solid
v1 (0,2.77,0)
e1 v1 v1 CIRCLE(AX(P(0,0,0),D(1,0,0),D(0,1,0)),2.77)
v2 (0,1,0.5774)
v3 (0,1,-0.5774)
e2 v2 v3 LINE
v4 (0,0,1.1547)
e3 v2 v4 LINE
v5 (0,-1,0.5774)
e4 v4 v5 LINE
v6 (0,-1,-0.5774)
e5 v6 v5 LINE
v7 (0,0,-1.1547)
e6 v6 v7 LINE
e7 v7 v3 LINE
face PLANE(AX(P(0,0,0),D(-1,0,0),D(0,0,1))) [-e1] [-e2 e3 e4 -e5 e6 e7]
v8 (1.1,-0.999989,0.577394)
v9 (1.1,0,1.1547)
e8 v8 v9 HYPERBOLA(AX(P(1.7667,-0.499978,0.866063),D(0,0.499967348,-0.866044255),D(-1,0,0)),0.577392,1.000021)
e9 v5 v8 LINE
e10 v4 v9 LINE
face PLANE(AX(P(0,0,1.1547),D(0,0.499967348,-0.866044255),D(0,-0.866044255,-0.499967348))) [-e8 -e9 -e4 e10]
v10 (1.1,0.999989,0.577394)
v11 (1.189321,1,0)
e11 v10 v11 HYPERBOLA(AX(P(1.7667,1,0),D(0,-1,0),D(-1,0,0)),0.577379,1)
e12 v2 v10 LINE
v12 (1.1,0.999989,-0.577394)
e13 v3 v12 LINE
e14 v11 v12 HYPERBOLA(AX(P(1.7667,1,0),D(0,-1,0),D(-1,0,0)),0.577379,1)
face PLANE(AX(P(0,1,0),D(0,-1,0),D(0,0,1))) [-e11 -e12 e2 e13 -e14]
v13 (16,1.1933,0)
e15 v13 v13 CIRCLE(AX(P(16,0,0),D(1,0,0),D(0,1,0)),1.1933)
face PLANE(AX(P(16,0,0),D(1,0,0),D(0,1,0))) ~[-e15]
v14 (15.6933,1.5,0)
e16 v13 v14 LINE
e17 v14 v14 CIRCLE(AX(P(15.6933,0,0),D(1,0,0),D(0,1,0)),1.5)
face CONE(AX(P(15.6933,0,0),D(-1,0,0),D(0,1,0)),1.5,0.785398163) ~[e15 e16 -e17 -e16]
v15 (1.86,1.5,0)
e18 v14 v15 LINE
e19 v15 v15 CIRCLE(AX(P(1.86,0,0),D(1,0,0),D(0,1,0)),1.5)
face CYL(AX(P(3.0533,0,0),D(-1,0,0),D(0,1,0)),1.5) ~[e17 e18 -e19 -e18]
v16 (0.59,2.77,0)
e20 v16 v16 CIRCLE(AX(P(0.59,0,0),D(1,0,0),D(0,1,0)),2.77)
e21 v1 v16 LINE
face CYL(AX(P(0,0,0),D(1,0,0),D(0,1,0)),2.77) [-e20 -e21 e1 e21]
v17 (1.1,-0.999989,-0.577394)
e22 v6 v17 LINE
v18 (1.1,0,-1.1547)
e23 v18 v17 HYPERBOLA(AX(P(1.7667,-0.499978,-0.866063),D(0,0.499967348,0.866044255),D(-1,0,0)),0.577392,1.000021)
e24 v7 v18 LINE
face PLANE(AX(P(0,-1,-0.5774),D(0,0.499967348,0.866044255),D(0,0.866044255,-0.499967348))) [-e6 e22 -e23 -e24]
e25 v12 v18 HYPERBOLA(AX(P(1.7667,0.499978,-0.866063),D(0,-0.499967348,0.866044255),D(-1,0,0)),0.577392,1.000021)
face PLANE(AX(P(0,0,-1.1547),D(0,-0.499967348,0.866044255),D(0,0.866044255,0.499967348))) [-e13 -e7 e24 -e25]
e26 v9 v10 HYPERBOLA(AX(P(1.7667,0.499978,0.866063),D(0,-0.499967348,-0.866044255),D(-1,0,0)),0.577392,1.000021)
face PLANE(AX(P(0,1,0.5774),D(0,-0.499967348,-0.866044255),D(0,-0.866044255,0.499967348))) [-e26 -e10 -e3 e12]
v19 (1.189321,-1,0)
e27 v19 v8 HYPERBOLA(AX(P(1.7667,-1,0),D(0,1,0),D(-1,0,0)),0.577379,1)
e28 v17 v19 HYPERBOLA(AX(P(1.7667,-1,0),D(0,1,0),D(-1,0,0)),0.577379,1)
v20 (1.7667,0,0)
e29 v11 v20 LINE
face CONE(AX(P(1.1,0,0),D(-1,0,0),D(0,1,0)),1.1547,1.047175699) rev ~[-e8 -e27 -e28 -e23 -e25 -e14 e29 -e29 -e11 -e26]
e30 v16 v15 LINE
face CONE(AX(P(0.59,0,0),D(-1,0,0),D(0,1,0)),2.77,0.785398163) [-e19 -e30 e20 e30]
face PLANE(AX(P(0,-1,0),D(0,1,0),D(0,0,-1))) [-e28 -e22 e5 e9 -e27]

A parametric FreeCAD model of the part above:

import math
import FreeCAD as App
import Part
import Sketcher

V = App.Vector
Q = App.Units.Quantity


def edges_at(feature, points):
    """Names of the edges that pass closest to the given points."""
    edges = feature.Shape.Edges
    near = lambda p: min(range(len(edges)), key=lambda i: edges[i].distToShape(Part.Vertex(*p))[0])
    return sorted({f"Edge{near(p) + 1}" for p in points})

doc = App.newDocument("Part")
params = doc.addObject("Spreadsheet::Sheet", "Params")
for row, (alias, value) in enumerate([
    ("sketch1_width", "1.1 mm"),
    ("sketch1_height", "1.5 mm"),
    ("sketch1_width2", "0.59 mm"),
    ("revolution_angle", "360 deg"),
    ("chamfer_size", "0.3067 mm"),
    ("chamfer_size2", "0.3067 mm"),
], start=1):
    params.set(f"A{row}", alias)
    params.set(f"B{row}", "=" + value)
    params.setAlias(f"B{row}", alias)

body = doc.addObject("PartDesign::Body", "Body")

# Sketch on XY plane
sketch1 = doc.addObject("Sketcher::SketchObject", "Sketch")
body.addObject(sketch1)
sketch1.AttachmentSupport = (doc.XY_Plane, [""])
sketch1.MapMode = "FlatFace"
sketch1.addGeometry(Part.LineSegment(V(1.8, 0, 0), V(16, 0, 0)), False)
sketch1.addGeometry(Part.LineSegment(V(16, 0, 0), V(16, 1.5, 0)), False)
sketch1.addGeometry(Part.LineSegment(V(16, 1.5, 0), V(1.9, 1.5, 0)), False)
sketch1.addGeometry(Part.LineSegment(V(1.9, 1.5, 0), V(0.6, 2.8, 0)), False)
sketch1.addGeometry(Part.LineSegment(V(0.6, 2.8, 0), V(0, 2.8, 0)), False)
sketch1.addGeometry(Part.LineSegment(V(0, 2.8, 0), V(0, 1.2, 0)), False)
sketch1.addGeometry(Part.LineSegment(V(0, 1.2, 0), V(1.1, 1.2, 0)), False)
sketch1.addGeometry(Part.LineSegment(V(1.1, 1.2, 0), V(1.8, 0, 0)), False)
sketch1.addConstraint(Sketcher.Constraint("Coincident", 0, 2, 1, 1))
sketch1.addConstraint(Sketcher.Constraint("Coincident", 1, 2, 2, 1))
sketch1.addConstraint(Sketcher.Constraint("Coincident", 2, 2, 3, 1))
sketch1.addConstraint(Sketcher.Constraint("Coincident", 3, 2, 4, 1))
sketch1.addConstraint(Sketcher.Constraint("Coincident", 4, 2, 5, 1))
sketch1.addConstraint(Sketcher.Constraint("Coincident", 5, 2, 6, 1))
sketch1.addConstraint(Sketcher.Constraint("Coincident", 6, 2, 7, 1))
sketch1.addConstraint(Sketcher.Constraint("Coincident", 7, 2, 0, 1))
sketch1.addConstraint(Sketcher.Constraint("Horizontal", 0))
sketch1.addConstraint(Sketcher.Constraint("Vertical", 1))
sketch1.addConstraint(Sketcher.Constraint("Horizontal", 2))
sketch1.addConstraint(Sketcher.Constraint("Horizontal", 4))
sketch1.addConstraint(Sketcher.Constraint("Vertical", 5))
sketch1.addConstraint(Sketcher.Constraint("Horizontal", 6))
sketch1.addConstraint(Sketcher.Constraint("PointOnObject", 0, 2, -1))
sketch1.addConstraint(Sketcher.Constraint("PointOnObject", 4, 2, -2))
sketch1.addConstraint(Sketcher.Constraint("DistanceX", 6, 1, 6, 2, 1.1))
sketch1.addConstraint(Sketcher.Constraint("DistanceX", -1, 1, 0, 2, 16.0))
sketch1.addConstraint(Sketcher.Constraint("DistanceX", -1, 1, 2, 2, 1.86))
sketch1.addConstraint(Sketcher.Constraint("Angle", 3, Q("135 deg")))
sketch1.addConstraint(Sketcher.Constraint("DistanceY", 1, 1, 1, 2, 1.5))
sketch1.addConstraint(Sketcher.Constraint("DistanceX", 4, 2, 4, 1, 0.59))
sketch1.addConstraint(Sketcher.Constraint("DistanceX", 0, 1, 0, 2, 14.2333))
sketch1.addConstraint(Sketcher.Constraint("DistanceY", 5, 2, 5, 1, 1.6153))
sketch1.setExpression("Constraints[16]", "Params.sketch1_width")
sketch1.setExpression("Constraints[20]", "Params.sketch1_height")
sketch1.setExpression("Constraints[21]", "Params.sketch1_width2")
revolution = doc.addObject("PartDesign::Revolution", "Revolution")
body.addObject(revolution)
revolution.Profile = sketch1
revolution.ReferenceAxis = (sketch1, ["H_Axis"])
revolution.setExpression("Angle", "Params.revolution_angle")

# Sketch on YZ plane
sketch2 = doc.addObject("Sketcher::SketchObject", "Sketch001")
body.addObject(sketch2)
sketch2.AttachmentSupport = (doc.YZ_Plane, [""])
sketch2.MapMode = "FlatFace"
sketch2.addGeometry(Part.LineSegment(V(1, 0.6, 0), V(0, 1.2, 0)), False)
sketch2.addGeometry(Part.ArcOfCircle(Part.Circle(V(0, 0, 0), V(0, 0, 1), 1.2), math.radians(30), math.radians(90)), False)
sketch2.addGeometry(Part.ArcOfCircle(Part.Circle(V(0, 0, 0), V(0, 0, 1), 1.2), math.radians(90), math.radians(150)), False)
sketch2.addGeometry(Part.LineSegment(V(0, 1.2, 0), V(-1, 0.6, 0)), False)
sketch2.addGeometry(Part.ArcOfCircle(Part.Circle(V(0, 0, 0), V(0, 0, 1), 1.2), math.radians(-30), math.radians(30)), False)
sketch2.addGeometry(Part.LineSegment(V(1, 0.6, 0), V(1, -0.6, 0)), False)
sketch2.addGeometry(Part.LineSegment(V(-1, 0.6, 0), V(-1, -0.6, 0)), False)
sketch2.addGeometry(Part.ArcOfCircle(Part.Circle(V(0, 0, 0), V(0, 0, 1), 1.2), math.radians(150), math.radians(210)), False)
sketch2.addGeometry(Part.LineSegment(V(-1, -0.6, 0), V(0, -1.2, 0)), False)
sketch2.addGeometry(Part.ArcOfCircle(Part.Circle(V(0, 0, 0), V(0, 0, 1), 1.2), math.radians(-150), math.radians(-90)), False)
sketch2.addGeometry(Part.ArcOfCircle(Part.Circle(V(0, 0, 0), V(0, 0, 1), 1.2), math.radians(-90), math.radians(-30)), False)
sketch2.addGeometry(Part.LineSegment(V(0, -1.2, 0), V(1, -0.6, 0)), False)
sketch2.addConstraint(Sketcher.Constraint("Coincident", 0, 1, 1, 1))
sketch2.addConstraint(Sketcher.Constraint("Coincident", 1, 2, 0, 2))
sketch2.addConstraint(Sketcher.Constraint("Coincident", 2, 1, 3, 1))
sketch2.addConstraint(Sketcher.Constraint("Coincident", 3, 2, 2, 2))
sketch2.addConstraint(Sketcher.Constraint("Coincident", 4, 1, 5, 2))
sketch2.addConstraint(Sketcher.Constraint("Coincident", 5, 1, 4, 2))
sketch2.addConstraint(Sketcher.Constraint("Coincident", 6, 1, 7, 1))
sketch2.addConstraint(Sketcher.Constraint("Coincident", 7, 2, 6, 2))
sketch2.addConstraint(Sketcher.Constraint("Coincident", 8, 1, 9, 1))
sketch2.addConstraint(Sketcher.Constraint("Coincident", 9, 2, 8, 2))
sketch2.addConstraint(Sketcher.Constraint("Coincident", 10, 1, 11, 1))
sketch2.addConstraint(Sketcher.Constraint("Coincident", 11, 2, 10, 2))
sketch2.addConstraint(Sketcher.Constraint("Vertical", 5))
sketch2.addConstraint(Sketcher.Constraint("Vertical", 6))
sketch2.addConstraint(Sketcher.Constraint("Coincident", 1, 3, -1, 1))
sketch2.addConstraint(Sketcher.Constraint("Coincident", 2, 3, -1, 1))
sketch2.addConstraint(Sketcher.Constraint("Coincident", 4, 3, -1, 1))
sketch2.addConstraint(Sketcher.Constraint("Coincident", 7, 3, -1, 1))
sketch2.addConstraint(Sketcher.Constraint("Coincident", 9, 3, -1, 1))
sketch2.addConstraint(Sketcher.Constraint("Coincident", 10, 3, -1, 1))
sketch2.addConstraint(Sketcher.Constraint("Coincident", 2, 1, 1, 2))
sketch2.addConstraint(Sketcher.Constraint("Coincident", 5, 1, 0, 1))
sketch2.addConstraint(Sketcher.Constraint("Coincident", 6, 1, 3, 2))
sketch2.addConstraint(Sketcher.Constraint("Coincident", 8, 1, 7, 2))
sketch2.addConstraint(Sketcher.Constraint("Coincident", 10, 1, 9, 2))
sketch2.addConstraint(Sketcher.Constraint("PointOnObject", 1, 2, -2))
sketch2.addConstraint(Sketcher.Constraint("PointOnObject", 9, 2, -2))
sketch2.addConstraint(Sketcher.Constraint("Parallel", 0, 8))
sketch2.addConstraint(Sketcher.Constraint("Parallel", 3, 11))
sketch2.addConstraint(Sketcher.Constraint("DistanceX", -1, 1, 0, 1, 1.0))
sketch2.addConstraint(Sketcher.Constraint("Radius", 1, 1.1547))
pad1 = doc.addObject("PartDesign::Pad", "Pad")
body.addObject(pad1)
pad1.Profile = sketch2
pad1.Type = "UpToFirst"
doc.recompute()

chamfer = doc.addObject("PartDesign::Chamfer", "Chamfer")
body.addObject(chamfer)
chamfer.Base = (pad1, edges_at(pad1, [(16, -1.5, 0)]))
chamfer.ChamferType = "Two distances"
chamfer.setExpression("Size", "Params.chamfer_size")
chamfer.setExpression("Size2", "Params.chamfer_size2")

doc.recompute()
